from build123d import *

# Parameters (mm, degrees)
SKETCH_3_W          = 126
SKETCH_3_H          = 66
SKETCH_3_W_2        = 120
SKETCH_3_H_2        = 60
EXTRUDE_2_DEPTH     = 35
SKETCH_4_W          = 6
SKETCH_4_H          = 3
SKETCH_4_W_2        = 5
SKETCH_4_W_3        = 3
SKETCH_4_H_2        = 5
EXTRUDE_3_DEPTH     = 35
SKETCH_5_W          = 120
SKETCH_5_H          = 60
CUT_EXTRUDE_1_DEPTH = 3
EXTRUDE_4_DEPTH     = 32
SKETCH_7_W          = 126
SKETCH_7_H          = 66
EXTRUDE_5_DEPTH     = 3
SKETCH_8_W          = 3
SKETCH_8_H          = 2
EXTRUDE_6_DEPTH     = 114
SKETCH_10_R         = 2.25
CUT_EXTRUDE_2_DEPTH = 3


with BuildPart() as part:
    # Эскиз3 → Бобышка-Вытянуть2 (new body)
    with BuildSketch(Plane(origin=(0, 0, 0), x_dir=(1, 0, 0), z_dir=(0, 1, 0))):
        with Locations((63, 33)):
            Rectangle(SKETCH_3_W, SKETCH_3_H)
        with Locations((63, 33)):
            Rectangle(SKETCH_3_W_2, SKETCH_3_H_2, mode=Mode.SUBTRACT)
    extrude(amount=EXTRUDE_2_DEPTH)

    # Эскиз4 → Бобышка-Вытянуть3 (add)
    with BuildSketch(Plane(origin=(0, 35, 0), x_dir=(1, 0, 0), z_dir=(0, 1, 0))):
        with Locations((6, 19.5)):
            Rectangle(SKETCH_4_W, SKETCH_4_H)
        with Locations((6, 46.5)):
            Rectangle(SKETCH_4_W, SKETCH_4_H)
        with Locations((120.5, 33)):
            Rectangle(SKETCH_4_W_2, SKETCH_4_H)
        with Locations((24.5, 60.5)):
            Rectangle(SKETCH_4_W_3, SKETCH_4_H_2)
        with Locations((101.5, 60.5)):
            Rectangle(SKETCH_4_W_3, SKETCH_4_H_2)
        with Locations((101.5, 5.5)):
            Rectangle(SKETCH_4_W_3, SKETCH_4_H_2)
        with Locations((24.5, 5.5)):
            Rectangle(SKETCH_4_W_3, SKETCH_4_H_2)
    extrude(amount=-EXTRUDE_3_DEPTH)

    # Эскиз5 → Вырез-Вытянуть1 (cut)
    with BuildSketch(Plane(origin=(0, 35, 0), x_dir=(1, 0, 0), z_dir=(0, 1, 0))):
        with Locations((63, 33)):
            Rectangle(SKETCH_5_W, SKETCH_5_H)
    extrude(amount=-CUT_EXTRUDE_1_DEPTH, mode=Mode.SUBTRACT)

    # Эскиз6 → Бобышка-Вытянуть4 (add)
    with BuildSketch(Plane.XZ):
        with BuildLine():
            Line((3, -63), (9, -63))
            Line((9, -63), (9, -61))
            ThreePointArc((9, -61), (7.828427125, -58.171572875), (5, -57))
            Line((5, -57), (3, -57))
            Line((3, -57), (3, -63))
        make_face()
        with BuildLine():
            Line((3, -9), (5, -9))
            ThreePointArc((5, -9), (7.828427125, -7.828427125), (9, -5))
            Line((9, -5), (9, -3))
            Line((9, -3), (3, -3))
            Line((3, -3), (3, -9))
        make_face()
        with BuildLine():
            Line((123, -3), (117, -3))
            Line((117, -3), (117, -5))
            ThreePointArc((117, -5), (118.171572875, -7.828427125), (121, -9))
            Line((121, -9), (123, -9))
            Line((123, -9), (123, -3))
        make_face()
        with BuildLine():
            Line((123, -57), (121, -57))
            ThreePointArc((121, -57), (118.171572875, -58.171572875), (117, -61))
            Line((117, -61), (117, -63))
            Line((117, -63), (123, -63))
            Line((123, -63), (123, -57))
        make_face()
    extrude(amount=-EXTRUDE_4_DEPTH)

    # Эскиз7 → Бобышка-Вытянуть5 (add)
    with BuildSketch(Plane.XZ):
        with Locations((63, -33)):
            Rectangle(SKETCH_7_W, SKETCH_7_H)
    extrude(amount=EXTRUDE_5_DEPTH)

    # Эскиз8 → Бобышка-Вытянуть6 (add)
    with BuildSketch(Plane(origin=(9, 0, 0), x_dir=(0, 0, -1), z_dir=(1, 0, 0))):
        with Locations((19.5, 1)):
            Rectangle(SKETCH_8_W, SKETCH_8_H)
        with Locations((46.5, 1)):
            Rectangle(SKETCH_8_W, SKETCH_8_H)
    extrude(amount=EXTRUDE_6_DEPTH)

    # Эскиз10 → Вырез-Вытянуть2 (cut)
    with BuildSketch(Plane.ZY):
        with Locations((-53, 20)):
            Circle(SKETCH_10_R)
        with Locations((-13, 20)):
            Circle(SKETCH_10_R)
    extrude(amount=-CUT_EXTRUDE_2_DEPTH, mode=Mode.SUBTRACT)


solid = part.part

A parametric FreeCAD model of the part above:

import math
import FreeCAD as App
import Part
import Sketcher

V = App.Vector
Q = App.Units.Quantity

doc = App.newDocument("Part")
body = doc.addObject("PartDesign::Body", "Body")

sketch1 = body.newObject("Sketcher::SketchObject", "Sketch")
sketch1.AttachmentSupport = (doc.getObject("XZ_Plane"), [""])
sketch1.MapMode = "FlatFace"
sketch1.addGeometry([
    Part.LineSegment(V(0, -66, 0), V(0, 0, 0)),
    Part.LineSegment(V(0, 0, 0), V(126, 0, 0)),
    Part.LineSegment(V(126, 0, 0), V(126, -66, 0)),
    Part.LineSegment(V(126, -66, 0), V(0, -66, 0)),
    Part.LineSegment(V(123, -3, 0), V(3, -3, 0)),
    Part.LineSegment(V(3, -3, 0), V(3, -63, 0)),
    Part.LineSegment(V(3, -63, 0), V(123, -63, 0)),
    Part.LineSegment(V(123, -63, 0), V(123, -3, 0)),
], False)
sketch1.addConstraint([
    Sketcher.Constraint("Coincident", 0, 2, 1, 1),
    Sketcher.Constraint("Coincident", 1, 2, 2, 1),
    Sketcher.Constraint("Coincident", 2, 2, 3, 1),
    Sketcher.Constraint("Coincident", 3, 2, 0, 1),
    Sketcher.Constraint("Coincident", 4, 2, 5, 1),
    Sketcher.Constraint("Coincident", 5, 2, 6, 1),
    Sketcher.Constraint("Coincident", 6, 2, 7, 1),
    Sketcher.Constraint("Coincident", 7, 2, 4, 1),
    Sketcher.Constraint("Vertical", 0),
    Sketcher.Constraint("Horizontal", 1),
    Sketcher.Constraint("Vertical", 2),
    Sketcher.Constraint("Horizontal", 3),
    Sketcher.Constraint("Horizontal", 4),
    Sketcher.Constraint("Vertical", 5),
    Sketcher.Constraint("Horizontal", 6),
    Sketcher.Constraint("Vertical", 7),
    Sketcher.Constraint("Coincident", 0, 2, -1, 1),
    Sketcher.Constraint("DistanceX", 1, 1, 1, 2, Q("126 mm")),
    Sketcher.Constraint("DistanceX", 4, 2, 4, 1, Q("120 mm")),
    Sketcher.Constraint("DistanceY", 0, 1, 0, 2, Q("66 mm")),
    Sketcher.Constraint("DistanceY", 5, 2, 5, 1, Q("60 mm")),
    Sketcher.Constraint("DistanceX", -1, 1, 4, 2, Q("3 mm")),
    Sketcher.Constraint("DistanceY", 4, 2, -1, 1, Q("3 mm")),
])
pad1 = body.newObject("PartDesign::Pad", "Pad")
pad1.Profile = sketch1
pad1.Length = 35
pad1.Reversed = True

sketch2 = body.newObject("Sketcher::SketchObject", "Sketch001")
sketch2.AttachmentSupport = (doc.getObject("XZ_Plane"), [""])
sketch2.MapMode = "FlatFace"
sketch2.AttachmentOffset = App.Placement(V(0, 0, -35), App.Rotation())
sketch2.addGeometry([
    Part.LineSegment(V(3, -21, 0), V(3, -18, 0)),
    Part.LineSegment(V(3, -18, 0), V(9, -18, 0)),
    Part.LineSegment(V(9, -18, 0), V(9, -21, 0)),
    Part.LineSegment(V(9, -21, 0), V(3, -21, 0)),
    Part.LineSegment(V(3, -48, 0), V(3, -45, 0)),
    Part.LineSegment(V(3, -45, 0), V(9, -45, 0)),
    Part.LineSegment(V(9, -45, 0), V(9, -48, 0)),
    Part.LineSegment(V(9, -48, 0), V(3, -48, 0)),
    Part.LineSegment(V(118, -34.5, 0), V(118, -31.5, 0)),
    Part.LineSegment(V(118, -31.5, 0), V(123, -31.5, 0)),
    Part.LineSegment(V(123, -31.5, 0), V(123, -34.5, 0)),
    Part.LineSegment(V(123, -34.5, 0), V(118, -34.5, 0)),
    Part.LineSegment(V(23, -63, 0), V(23, -58, 0)),
    Part.LineSegment(V(23, -58, 0), V(26, -58, 0)),
    Part.LineSegment(V(26, -58, 0), V(26, -63, 0)),
    Part.LineSegment(V(26, -63, 0), V(23, -63, 0)),
    Part.LineSegment(V(100, -63, 0), V(100, -58, 0)),
    Part.LineSegment(V(100, -58, 0), V(103, -58, 0)),
    Part.LineSegment(V(103, -58, 0), V(103, -63, 0)),
    Part.LineSegment(V(103, -63, 0), V(100, -63, 0)),
    Part.LineSegment(V(100, -8, 0), V(100, -3, 0)),
    Part.LineSegment(V(100, -3, 0), V(103, -3, 0)),
    Part.LineSegment(V(103, -3, 0), V(103, -8, 0)),
    Part.LineSegment(V(103, -8, 0), V(100, -8, 0)),
    Part.LineSegment(V(23, -8, 0), V(23, -3, 0)),
    Part.LineSegment(V(23, -3, 0), V(26, -3, 0)),
    Part.LineSegment(V(26, -3, 0), V(26, -8, 0)),
    Part.LineSegment(V(26, -8, 0), V(23, -8, 0)),
], False)
sketch2.addConstraint([
    Sketcher.Constraint("Coincident", 0, 2, 1, 1),
    Sketcher.Constraint("Coincident", 1, 2, 2, 1),
    Sketcher.Constraint("Coincident", 2, 2, 3, 1),
    Sketcher.Constraint("Coincident", 3, 2, 0, 1),
    Sketcher.Constraint("Coincident", 4, 2, 5, 1),
    Sketcher.Constraint("Coincident", 5, 2, 6, 1),
    Sketcher.Constraint("Coincident", 6, 2, 7, 1),
    Sketcher.Constraint("Coincident", 7, 2, 4, 1),
    Sketcher.Constraint("Coincident", 8, 2, 9, 1),
    Sketcher.Constraint("Coincident", 9, 2, 10, 1),
    Sketcher.Constraint("Coincident", 10, 2, 11, 1),
    Sketcher.Constraint("Coincident", 11, 2, 8, 1),
    Sketcher.Constraint("Coincident", 12, 2, 13, 1),
    Sketcher.Constraint("Coincident", 13, 2, 14, 1),
    Sketcher.Constraint("Coincident", 14, 2, 15, 1),
    Sketcher.Constraint("Coincident", 15, 2, 12, 1),
    Sketcher.Constraint("Coincident", 16, 2, 17, 1),
    Sketcher.Constraint("Coincident", 17, 2, 18, 1),
    Sketcher.Constraint("Coincident", 18, 2, 19, 1),
    Sketcher.Constraint("Coincident", 19, 2, 16, 1),
    Sketcher.Constraint("Coincident", 20, 2, 21, 1),
    Sketcher.Constraint("Coincident", 21, 2, 22, 1),
    Sketcher.Constraint("Coincident", 22, 2, 23, 1),
    Sketcher.Constraint("Coincident", 23, 2, 20, 1),
    Sketcher.Constraint("Coincident", 24, 2, 25, 1),
    Sketcher.Constraint("Coincident", 25, 2, 26, 1),
    Sketcher.Constraint("Coincident", 26, 2, 27, 1),
    Sketcher.Constraint("Coincident", 27, 2, 24, 1),
    Sketcher.Constraint("Vertical", 0),
    Sketcher.Constraint("Horizontal", 1),
    Sketcher.Constraint("Vertical", 2),
    Sketcher.Constraint("Horizontal", 3),
    Sketcher.Constraint("Vertical", 4),
    Sketcher.Constraint("Horizontal", 5),
    Sketcher.Constraint("Vertical", 6),
    Sketcher.Constraint("Horizontal", 7),
    Sketcher.Constraint("Vertical", 8),
    Sketcher.Constraint("Horizontal", 9),
    Sketcher.Constraint("Vertical", 10),
    Sketcher.Constraint("Horizontal", 11),
    Sketcher.Constraint("Vertical", 12),
    Sketcher.Constraint("Horizontal", 13),
    Sketcher.Constraint("Vertical", 14),
    Sketcher.Constraint("Horizontal", 15),
    Sketcher.Constraint("Vertical", 16),
    Sketcher.Constraint("Horizontal", 17),
    Sketcher.Constraint("Vertical", 18),
    Sketcher.Constraint("Horizontal", 19),
    Sketcher.Constraint("Vertical", 20),
    Sketcher.Constraint("Horizontal", 21),
    Sketcher.Constraint("Vertical", 22),
    Sketcher.Constraint("Horizontal", 23),
    Sketcher.Constraint("Vertical", 24),
    Sketcher.Constraint("Horizontal", 25),
    Sketcher.Constraint("Vertical", 26),
    Sketcher.Constraint("Horizontal", 27),
    Sketcher.Constraint("Horizontal", 13, 2, 16, 2),
    Sketcher.Constraint("Horizontal", 15, 2, 18, 2),
    Sketcher.Constraint("Horizontal", 21, 2, 24, 2),
    Sketcher.Constraint("Horizontal", 23, 2, 26, 2),
    Sketcher.Constraint("Vertical", 3, 2, 4, 2),
    Sketcher.Constraint("Vertical", 2, 2, 5, 2),
    Sketcher.Constraint("Vertical", 19, 2, 20, 2),
    Sketcher.Constraint("Vertical", 18, 2, 21, 2),
    Sketcher.Constraint("Vertical", 15, 2, 24, 2),
    Sketcher.Constraint("Vertical", 14, 2, 25, 2),
    Sketcher.Constraint("Equal", 15, 17),
    Sketcher.Constraint("Equal", 27, 0),
    Sketcher.Constraint("Equal", 2, 4),
    Sketcher.Constraint("Equal", 6, 8),
    Sketcher.Constraint("Equal", 11, 12),
    Sketcher.Constraint("Equal", 18, 20),
    Sketcher.Constraint("DistanceX", 1, 1, 1, 2, Q("6 mm")),
    Sketcher.Constraint("DistanceX", 9, 1, 9, 2, Q("5 mm")),
    Sketcher.Constraint("DistanceX", 13, 1, 13, 2, Q("3 mm")),
    Sketcher.Constraint("DistanceX", -1, 1, 0, 2, Q("3 mm")),
    Sketcher.Constraint("DistanceY", 0, 2, -1, 1, Q("18 mm")),
    Sketcher.Constraint("DistanceY", 4, 2, -1, 1, Q("45 mm")),
    Sketcher.Constraint("DistanceX", -1, 1, 8, 2, Q("118 mm")),
    Sketcher.Constraint("DistanceX", -1, 1, 12, 2, Q("23 mm")),
    Sketcher.Constraint("DistanceY", 12, 2, -1, 1, Q("58 mm")),
    Sketcher.Constraint("DistanceX", -1, 1, 16, 2, Q("100 mm")),
    Sketcher.Constraint("DistanceY", 20, 2, -1, 1, Q("3 mm")),
    Sketcher.Constraint("DistanceY", 8, 2, -1, 1, Q("31.5 mm")),
])
pad2 = body.newObject("PartDesign::Pad", "Pad001")
pad2.Profile = sketch2
pad2.Length = 35

sketch3 = body.newObject("Sketcher::SketchObject", "Sketch002")
sketch3.AttachmentSupport = (doc.getObject("XZ_Plane"), [""])
sketch3.MapMode = "FlatFace"
sketch3.AttachmentOffset = App.Placement(V(0, 0, -35), App.Rotation())
sketch3.addGeometry([
    Part.LineSegment(V(3, -63, 0), V(3, -3, 0)),
    Part.LineSegment(V(3, -3, 0), V(123, -3, 0)),
    Part.LineSegment(V(123, -3, 0), V(123, -63, 0)),
    Part.LineSegment(V(123, -63, 0), V(3, -63, 0)),
], False)
sketch3.addConstraint([
    Sketcher.Constraint("Coincident", 0, 2, 1, 1),
    Sketcher.Constraint("Coincident", 1, 2, 2, 1),
    Sketcher.Constraint("Coincident", 2, 2, 3, 1),
    Sketcher.Constraint("Coincident", 3, 2, 0, 1),
    Sketcher.Constraint("Vertical", 0),
    Sketcher.Constraint("Horizontal", 1),
    Sketcher.Constraint("Vertical", 2),
    Sketcher.Constraint("Horizontal", 3),
    Sketcher.Constraint("DistanceX", 1, 1, 1, 2, Q("120 mm")),
    Sketcher.Constraint("DistanceY", 0, 1, 0, 2, Q("60 mm")),
    Sketcher.Constraint("DistanceX", -1, 1, 0, 2, Q("3 mm")),
    Sketcher.Constraint("DistanceY", 0, 2, -1, 1, Q("3 mm")),
])
pocket1 = body.newObject("PartDesign::Pocket", "Pocket")
pocket1.Profile = sketch3
pocket1.Length = 3
pocket1.Reversed = True

sketch4 = body.newObject("Sketcher::SketchObject", "Sketch003")
sketch4.AttachmentSupport = (doc.getObject("XZ_Plane"), [""])
sketch4.MapMode = "FlatFace"
sketch4.addGeometry([
    Part.LineSegment(V(3, -63, 0), V(9, -63, 0)),
    Part.LineSegment(V(9, -63, 0), V(9, -61, 0)),
    Part.ArcOfCircle(Part.Circle(V(5, -61, 0), V(0, 0, 1), 4), math.radians(0), math.radians(90)),
    Part.LineSegment(V(5, -57, 0), V(3, -57, 0)),
    Part.LineSegment(V(3, -57, 0), V(3, -63, 0)),
    Part.LineSegment(V(3, -9, 0), V(5, -9, 0)),
    Part.ArcOfCircle(Part.Circle(V(5, -5, 0), V(0, 0, 1), 4), math.radians(-90), math.radians(0)),
    Part.LineSegment(V(9, -5, 0), V(9, -3, 0)),
    Part.LineSegment(V(9, -3, 0), V(3, -3, 0)),
    Part.LineSegment(V(3, -3, 0), V(3, -9, 0)),
    Part.LineSegment(V(123, -3, 0), V(117, -3, 0)),
    Part.LineSegment(V(117, -3, 0), V(117, -5, 0)),
    Part.ArcOfCircle(Part.Circle(V(121, -5, 0), V(0, 0, 1), 4), math.radians(180), math.radians(270)),
    Part.LineSegment(V(121, -9, 0), V(123, -9, 0)),
    Part.LineSegment(V(123, -9, 0), V(123, -3, 0)),
    Part.LineSegment(V(123, -57, 0), V(121, -57, 0)),
    Part.ArcOfCircle(Part.Circle(V(121, -61, 0), V(0, 0, 1), 4), math.radians(90), math.radians(180)),
    Part.LineSegment(V(117, -61, 0), V(117, -63, 0)),
    Part.LineSegment(V(117, -63, 0), V(123, -63, 0)),
    Part.LineSegment(V(123, -63, 0), V(123, -57, 0)),
], False)
sketch4.addConstraint([
    Sketcher.Constraint("Coincident", 0, 2, 1, 1),
    Sketcher.Constraint("Tangent", 1, 2, 2, 1),
    Sketcher.Constraint("Tangent", 2, 2, 3, 1),
    Sketcher.Constraint("Coincident", 3, 2, 4, 1),
    Sketcher.Constraint("Coincident", 4, 2, 0, 1),
    Sketcher.Constraint("Tangent", 5, 2, 6, 1),
    Sketcher.Constraint("Tangent", 6, 2, 7, 1),
    Sketcher.Constraint("Coincident", 7, 2, 8, 1),
    Sketcher.Constraint("Coincident", 8, 2, 9, 1),
    Sketcher.Constraint("Coincident", 9, 2, 5, 1),
    Sketcher.Constraint("Coincident", 10, 2, 11, 1),
    Sketcher.Constraint("Tangent", 11, 2, 12, 1),
    Sketcher.Constraint("Tangent", 12, 2, 13, 1),
    Sketcher.Constraint("Coincident", 13, 2, 14, 1),
    Sketcher.Constraint("Coincident", 14, 2, 10, 1),
    Sketcher.Constraint("Tangent", 15, 2, 16, 1),
    Sketcher.Constraint("Tangent", 16, 2, 17, 1),
    Sketcher.Constraint("Coincident", 17, 2, 18, 1),
    Sketcher.Constraint("Coincident", 18, 2, 19, 1),
    Sketcher.Constraint("Coincident", 19, 2, 15, 1),
    Sketcher.Constraint("Horizontal", 0),
    Sketcher.Constraint("Vertical", 1),
    Sketcher.Constraint("Horizontal", 3),
    Sketcher.Constraint("Vertical", 4),
    Sketcher.Constraint("Horizontal", 5),
    Sketcher.Constraint("Vertical", 7),
    Sketcher.Constraint("Horizontal", 8),
    Sketcher.Constraint("Vertical", 9),
    Sketcher.Constraint("Horizontal", 10),
    Sketcher.Constraint("Vertical", 11),
    Sketcher.Constraint("Horizontal", 13),
    Sketcher.Constraint("Vertical", 14),
    Sketcher.Constraint("Horizontal", 15),
    Sketcher.Constraint("Vertical", 17),
    Sketcher.Constraint("Horizontal", 18),
    Sketcher.Constraint("Vertical", 19),
    Sketcher.Constraint("Equal", 2, 6),
    Sketcher.Constraint("Equal", 6, 12),
    Sketcher.Constraint("Equal", 12, 16),
    Sketcher.Constraint("Horizontal", 6, 3, 12, 3),
    Sketcher.Constraint("Horizontal", 2, 3, 16, 3),
    Sketcher.Constraint("Horizontal", 8, 2, 10, 2),
    Sketcher.Constraint("Horizontal", 4, 2, 17, 2),
    Sketcher.Constraint("Vertical", 2, 3, 6, 3),
    Sketcher.Constraint("Vertical", 12, 3, 16, 3),
    Sketcher.Constraint("Vertical", 4, 2, 8, 2),
    Sketcher.Constraint("Vertical", 14, 2, 18, 2),
    Sketcher.Constraint("Equal", 8, 10),
    Sketcher.Constraint("Equal", 15, 1),
    Sketcher.Constraint("Equal", 1, 7),
    Sketcher.Constraint("Radius", 2, Q("4 mm")),
    Sketcher.Constraint("DistanceX", 0, 1, 0, 2, Q("6 mm")),
    Sketcher.Constraint("DistanceX", -1, 1, 2, 3, Q("5 mm")),
    Sketcher.Constraint("DistanceY", 2, 3, -1, 1, Q("61 mm")),
    Sketcher.Constraint("DistanceY", 6, 3, -1, 1, Q("5 mm")),
    Sketcher.Constraint("DistanceX", -1, 1, 12, 3, Q("121 mm")),
])
pad3 = body.newObject("PartDesign::Pad", "Pad002")
pad3.Profile = sketch4
pad3.Length = 32
pad3.Reversed = True

sketch5 = body.newObject("Sketcher::SketchObject", "Sketch004")
sketch5.AttachmentSupport = (doc.getObject("XZ_Plane"), [""])
sketch5.MapMode = "FlatFace"
sketch5.addGeometry([
    Part.LineSegment(V(0, 0, 0), V(0, -66, 0)),
    Part.LineSegment(V(0, -66, 0), V(126, -66, 0)),
    Part.LineSegment(V(126, -66, 0), V(126, 0, 0)),
    Part.LineSegment(V(126, 0, 0), V(0, 0, 0)),
], False)
sketch5.addConstraint([
    Sketcher.Constraint("Coincident", 0, 2, 1, 1),
    Sketcher.Constraint("Coincident", 1, 2, 2, 1),
    Sketcher.Constraint("Coincident", 2, 2, 3, 1),
    Sketcher.Constraint("Coincident", 3, 2, 0, 1),
    Sketcher.Constraint("Vertical", 0),
    Sketcher.Constraint("Horizontal", 1),
    Sketcher.Constraint("Vertical", 2),
    Sketcher.Constraint("Horizontal", 3),
    Sketcher.Constraint("Coincident", 3, 2, -1, 1),
    Sketcher.Constraint("DistanceX", 1, 1, 1, 2, Q("126 mm")),
    Sketcher.Constraint("DistanceY", 0, 2, 0, 1, Q("66 mm")),
])
pad4 = body.newObject("PartDesign::Pad", "Pad003")
pad4.Profile = sketch5
pad4.Length = 3

sketch6 = body.newObject("Sketcher::SketchObject", "Sketch005")
sketch6.AttachmentSupport = (doc.getObject("YZ_Plane"), [""])
sketch6.MapMode = "FlatFace"
sketch6.AttachmentOffset = App.Placement(V(0, 0, 9), App.Rotation())
sketch6.addGeometry([
    Part.LineSegment(V(2, -18, 0), V(0, -18, 0)),
    Part.LineSegment(V(0, -18, 0), V(0, -21, 0)),
    Part.LineSegment(V(0, -21, 0), V(2, -21, 0)),
    Part.LineSegment(V(2, -21, 0), V(2, -18, 0)),
    Part.LineSegment(V(2, -45, 0), V(0, -45, 0)),
    Part.LineSegment(V(0, -45, 0), V(0, -48, 0)),
    Part.LineSegment(V(0, -48, 0), V(2, -48, 0)),
    Part.LineSegment(V(2, -48, 0), V(2, -45, 0)),
], False)
sketch6.addConstraint([
    Sketcher.Constraint("Coincident", 0, 2, 1, 1),
    Sketcher.Constraint("Coincident", 1, 2, 2, 1),
    Sketcher.Constraint("Coincident", 2, 2, 3, 1),
    Sketcher.Constraint("Coincident", 3, 2, 0, 1),
    Sketcher.Constraint("Coincident", 4, 2, 5, 1),
    Sketcher.Constraint("Coincident", 5, 2, 6, 1),
    Sketcher.Constraint("Coincident", 6, 2, 7, 1),
    Sketcher.Constraint("Coincident", 7, 2, 4, 1),
    Sketcher.Constraint("Horizontal", 0),
    Sketcher.Constraint("Vertical", 1),
    Sketcher.Constraint("Horizontal", 2),
    Sketcher.Constraint("Vertical", 3),
    Sketcher.Constraint("Horizontal", 4),
    Sketcher.Constraint("Vertical", 5),
    Sketcher.Constraint("Horizontal", 6),
    Sketcher.Constraint("Vertical", 7),
    Sketcher.Constraint("PointOnObject", 0, 2, -2),
    Sketcher.Constraint("PointOnObject", 4, 2, -2),
    Sketcher.Constraint("Vertical", 3, 2, 6, 2),
    Sketcher.Constraint("Equal", 3, 5),
    Sketcher.Constraint("DistanceX", 0, 2, 0, 1, Q("2 mm")),
    Sketcher.Constraint("DistanceY", 1, 2, 1, 1, Q("3 mm")),
    Sketcher.Constraint("DistanceY", 0, 2, -1, 1, Q("18 mm")),
    Sketcher.Constraint("DistanceY", 4, 2, -1, 1, Q("45 mm")),
])
pad5 = body.newObject("PartDesign::Pad", "Pad004")
pad5.Profile = sketch6
pad5.Length = 114

sketch7 = body.newObject("Sketcher::SketchObject", "Sketch006")
sketch7.AttachmentSupport = (doc.getObject("YZ_Plane"), [""])
sketch7.MapMode = "FlatFace"
sketch7.addGeometry([
    Part.Circle(V(20, -53, 0), V(0, 0, 1), 2.2),
    Part.Circle(V(20, -13, 0), V(0, 0, 1), 2.2),
], False)
sketch7.addConstraint([
    Sketcher.Constraint("Equal", 0, 1),
    Sketcher.Constraint("Vertical", 0, 3, 1, 3),
    Sketcher.Constraint("Diameter", 0, Q("4.5 mm")),
    Sketcher.Constraint("DistanceX", -1, 1, 0, 3, Q("20 mm")),
    Sketcher.Constraint("DistanceY", 0, 3, -1, 1, Q("53 mm")),
    Sketcher.Constraint("DistanceY", 1, 3, -1, 1, Q("13 mm")),
])
pocket2 = body.newObject("PartDesign::Pocket", "Pocket001")
pocket2.Profile = sketch7
pocket2.Length = 3
pocket2.Reversed = True

doc.recompute()
